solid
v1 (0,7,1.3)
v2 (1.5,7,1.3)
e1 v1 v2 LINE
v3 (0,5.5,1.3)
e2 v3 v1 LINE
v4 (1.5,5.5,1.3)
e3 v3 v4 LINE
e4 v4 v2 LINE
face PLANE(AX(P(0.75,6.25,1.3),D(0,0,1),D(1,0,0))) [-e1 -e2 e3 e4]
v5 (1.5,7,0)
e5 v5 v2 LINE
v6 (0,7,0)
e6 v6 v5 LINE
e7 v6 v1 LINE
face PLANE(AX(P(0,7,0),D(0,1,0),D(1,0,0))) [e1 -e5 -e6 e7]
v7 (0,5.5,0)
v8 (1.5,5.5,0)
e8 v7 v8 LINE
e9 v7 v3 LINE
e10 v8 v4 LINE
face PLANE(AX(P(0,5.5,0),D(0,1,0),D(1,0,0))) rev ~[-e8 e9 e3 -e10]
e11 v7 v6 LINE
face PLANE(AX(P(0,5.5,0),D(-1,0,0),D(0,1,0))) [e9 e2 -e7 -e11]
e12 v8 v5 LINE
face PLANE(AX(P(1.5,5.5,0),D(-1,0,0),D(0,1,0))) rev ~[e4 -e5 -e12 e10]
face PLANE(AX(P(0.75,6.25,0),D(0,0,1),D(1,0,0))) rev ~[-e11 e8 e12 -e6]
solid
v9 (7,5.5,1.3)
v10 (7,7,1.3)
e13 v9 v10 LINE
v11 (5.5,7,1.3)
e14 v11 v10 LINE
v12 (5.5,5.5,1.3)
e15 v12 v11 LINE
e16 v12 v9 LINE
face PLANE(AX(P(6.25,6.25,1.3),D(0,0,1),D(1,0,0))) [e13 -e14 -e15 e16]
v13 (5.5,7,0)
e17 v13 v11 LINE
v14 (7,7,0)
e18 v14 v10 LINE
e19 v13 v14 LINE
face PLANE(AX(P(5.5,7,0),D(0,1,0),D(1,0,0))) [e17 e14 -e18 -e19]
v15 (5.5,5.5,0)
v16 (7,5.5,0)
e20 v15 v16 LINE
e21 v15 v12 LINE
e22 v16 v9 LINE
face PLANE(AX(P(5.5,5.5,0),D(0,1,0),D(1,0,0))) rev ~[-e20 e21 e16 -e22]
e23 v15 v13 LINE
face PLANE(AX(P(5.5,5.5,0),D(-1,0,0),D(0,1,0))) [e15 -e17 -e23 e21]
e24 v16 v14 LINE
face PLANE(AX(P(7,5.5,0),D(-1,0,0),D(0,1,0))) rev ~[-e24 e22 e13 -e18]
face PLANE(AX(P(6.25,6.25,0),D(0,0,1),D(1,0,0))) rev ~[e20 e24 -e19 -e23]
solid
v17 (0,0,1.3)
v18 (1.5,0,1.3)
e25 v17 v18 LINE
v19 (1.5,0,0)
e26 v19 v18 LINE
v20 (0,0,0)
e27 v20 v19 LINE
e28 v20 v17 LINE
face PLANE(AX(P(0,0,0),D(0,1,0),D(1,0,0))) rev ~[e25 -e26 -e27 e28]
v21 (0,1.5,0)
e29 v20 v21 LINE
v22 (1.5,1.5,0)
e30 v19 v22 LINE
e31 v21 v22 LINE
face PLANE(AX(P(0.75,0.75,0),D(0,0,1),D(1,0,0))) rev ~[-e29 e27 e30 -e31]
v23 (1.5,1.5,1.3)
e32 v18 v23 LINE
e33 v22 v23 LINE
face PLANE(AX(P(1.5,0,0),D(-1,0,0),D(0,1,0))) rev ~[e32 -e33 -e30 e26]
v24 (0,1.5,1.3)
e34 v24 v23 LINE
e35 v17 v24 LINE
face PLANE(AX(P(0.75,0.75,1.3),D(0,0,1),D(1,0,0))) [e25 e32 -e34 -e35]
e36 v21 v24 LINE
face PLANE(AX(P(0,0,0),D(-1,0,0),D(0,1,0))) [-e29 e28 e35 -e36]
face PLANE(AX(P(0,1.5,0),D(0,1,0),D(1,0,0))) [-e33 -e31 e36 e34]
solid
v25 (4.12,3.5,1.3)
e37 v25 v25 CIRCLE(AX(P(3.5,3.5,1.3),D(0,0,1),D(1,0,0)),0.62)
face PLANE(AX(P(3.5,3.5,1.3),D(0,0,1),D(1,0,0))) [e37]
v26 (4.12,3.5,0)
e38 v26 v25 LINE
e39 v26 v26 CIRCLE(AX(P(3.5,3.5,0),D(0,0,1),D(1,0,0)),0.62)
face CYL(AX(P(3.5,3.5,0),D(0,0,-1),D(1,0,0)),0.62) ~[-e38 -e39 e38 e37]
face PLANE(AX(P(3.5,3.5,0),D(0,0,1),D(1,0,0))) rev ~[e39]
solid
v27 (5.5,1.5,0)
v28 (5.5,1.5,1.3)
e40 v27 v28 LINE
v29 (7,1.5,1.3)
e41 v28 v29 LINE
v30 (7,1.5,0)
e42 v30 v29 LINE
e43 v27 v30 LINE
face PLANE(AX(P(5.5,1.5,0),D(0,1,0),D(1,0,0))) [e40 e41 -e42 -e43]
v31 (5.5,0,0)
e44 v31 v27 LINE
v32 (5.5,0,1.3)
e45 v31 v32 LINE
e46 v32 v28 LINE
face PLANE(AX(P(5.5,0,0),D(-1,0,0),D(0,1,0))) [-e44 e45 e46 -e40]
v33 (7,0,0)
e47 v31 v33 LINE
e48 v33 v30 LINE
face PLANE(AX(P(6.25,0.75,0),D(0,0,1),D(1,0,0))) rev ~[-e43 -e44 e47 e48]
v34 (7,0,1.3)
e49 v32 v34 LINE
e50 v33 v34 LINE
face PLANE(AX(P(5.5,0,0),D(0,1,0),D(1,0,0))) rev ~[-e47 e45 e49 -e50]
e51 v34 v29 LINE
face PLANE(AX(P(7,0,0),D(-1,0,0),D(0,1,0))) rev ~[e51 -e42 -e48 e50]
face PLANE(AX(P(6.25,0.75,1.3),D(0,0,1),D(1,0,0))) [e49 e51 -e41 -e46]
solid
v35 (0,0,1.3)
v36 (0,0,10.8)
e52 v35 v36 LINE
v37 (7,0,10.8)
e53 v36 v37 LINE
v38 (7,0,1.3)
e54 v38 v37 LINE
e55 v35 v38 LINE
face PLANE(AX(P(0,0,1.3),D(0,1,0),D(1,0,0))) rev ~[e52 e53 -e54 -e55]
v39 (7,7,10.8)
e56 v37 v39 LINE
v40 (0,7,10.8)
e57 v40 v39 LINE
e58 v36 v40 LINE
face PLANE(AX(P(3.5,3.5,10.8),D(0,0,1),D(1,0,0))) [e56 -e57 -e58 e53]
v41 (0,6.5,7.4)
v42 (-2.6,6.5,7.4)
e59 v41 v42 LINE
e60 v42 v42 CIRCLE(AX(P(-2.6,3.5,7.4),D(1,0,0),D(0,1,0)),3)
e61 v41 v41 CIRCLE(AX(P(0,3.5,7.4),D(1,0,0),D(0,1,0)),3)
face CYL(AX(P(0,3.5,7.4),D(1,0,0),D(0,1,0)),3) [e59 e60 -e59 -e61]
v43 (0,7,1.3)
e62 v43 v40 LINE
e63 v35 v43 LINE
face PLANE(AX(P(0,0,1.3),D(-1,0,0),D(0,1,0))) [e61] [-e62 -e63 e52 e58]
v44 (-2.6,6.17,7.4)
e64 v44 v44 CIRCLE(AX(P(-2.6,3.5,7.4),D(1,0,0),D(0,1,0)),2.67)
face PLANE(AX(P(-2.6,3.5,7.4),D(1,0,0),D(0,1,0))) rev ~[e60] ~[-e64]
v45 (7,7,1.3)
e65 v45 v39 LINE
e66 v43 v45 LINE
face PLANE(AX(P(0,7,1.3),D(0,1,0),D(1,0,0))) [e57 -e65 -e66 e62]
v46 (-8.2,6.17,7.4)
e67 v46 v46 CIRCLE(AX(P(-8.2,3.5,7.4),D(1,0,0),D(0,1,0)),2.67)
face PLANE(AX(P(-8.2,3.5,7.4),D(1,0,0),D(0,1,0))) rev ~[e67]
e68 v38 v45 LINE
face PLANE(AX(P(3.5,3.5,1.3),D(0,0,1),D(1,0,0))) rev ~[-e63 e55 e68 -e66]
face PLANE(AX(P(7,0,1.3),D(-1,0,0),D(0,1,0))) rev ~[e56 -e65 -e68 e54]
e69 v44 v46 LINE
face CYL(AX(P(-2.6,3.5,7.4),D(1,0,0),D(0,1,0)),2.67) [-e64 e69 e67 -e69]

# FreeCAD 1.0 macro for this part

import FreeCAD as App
import Part
import Sketcher
Q = App.Units.Quantity

doc = App.newDocument("Part")
body = doc.addObject("PartDesign::Body", "Body")
body.AllowCompound = True

sketch1 = body.newObject("Sketcher::SketchObject", "Sketch")
sketch1.AttachmentSupport = (doc.getObject("XY_Plane"), [""])
sketch1.MapMode = "FlatFace"
sketch1.addGeometry([
    Part.LineSegment(App.Vector(0, 7, 0), App.Vector(0, 5.5, 0)),
    Part.LineSegment(App.Vector(0, 5.5, 0), App.Vector(1.5, 5.5, 0)),
    Part.LineSegment(App.Vector(1.5, 5.5, 0), App.Vector(1.5, 7, 0)),
    Part.LineSegment(App.Vector(1.5, 7, 0), App.Vector(0, 7, 0)),
    Part.LineSegment(App.Vector(5.5, 7, 0), App.Vector(5.5, 5.5, 0)),
    Part.LineSegment(App.Vector(5.5, 5.5, 0), App.Vector(7, 5.5, 0)),
    Part.LineSegment(App.Vector(7, 5.5, 0), App.Vector(7, 7, 0)),
    Part.LineSegment(App.Vector(7, 7, 0), App.Vector(5.5, 7, 0)),
    Part.LineSegment(App.Vector(5.5, 1.5, 0), App.Vector(5.5, 0, 0)),
    Part.LineSegment(App.Vector(5.5, 0, 0), App.Vector(7, 0, 0)),
    Part.LineSegment(App.Vector(7, 0, 0), App.Vector(7, 1.5, 0)),
    Part.LineSegment(App.Vector(7, 1.5, 0), App.Vector(5.5, 1.5, 0)),
    Part.LineSegment(App.Vector(0, 1.5, 0), App.Vector(0, 0, 0)),
    Part.LineSegment(App.Vector(0, 0, 0), App.Vector(1.5, 0, 0)),
    Part.LineSegment(App.Vector(1.5, 0, 0), App.Vector(1.5, 1.5, 0)),
    Part.LineSegment(App.Vector(1.5, 1.5, 0), App.Vector(0, 1.5, 0)),
    Part.Circle(App.Vector(3.5, 3.5, 0), App.Vector(0, 0, 1), 0.62),
], False)
sketch1.addConstraint([
    Sketcher.Constraint("Coincident", 0, 2, 1, 1),
    Sketcher.Constraint("Coincident", 1, 2, 2, 1),
    Sketcher.Constraint("Coincident", 2, 2, 3, 1),
    Sketcher.Constraint("Coincident", 3, 2, 0, 1),
    Sketcher.Constraint("Coincident", 4, 2, 5, 1),
    Sketcher.Constraint("Coincident", 5, 2, 6, 1),
    Sketcher.Constraint("Coincident", 6, 2, 7, 1),
    Sketcher.Constraint("Coincident", 7, 2, 4, 1),
    Sketcher.Constraint("Coincident", 8, 2, 9, 1),
    Sketcher.Constraint("Coincident", 9, 2, 10, 1),
    Sketcher.Constraint("Coincident", 10, 2, 11, 1),
    Sketcher.Constraint("Coincident", 11, 2, 8, 1),
    Sketcher.Constraint("Coincident", 12, 2, 13, 1),
    Sketcher.Constraint("Coincident", 13, 2, 14, 1),
    Sketcher.Constraint("Coincident", 14, 2, 15, 1),
    Sketcher.Constraint("Coincident", 15, 2, 12, 1),
    Sketcher.Constraint("Vertical", 0),
    Sketcher.Constraint("Horizontal", 1),
    Sketcher.Constraint("Vertical", 2),
    Sketcher.Constraint("Horizontal", 3),
    Sketcher.Constraint("Vertical", 4),
    Sketcher.Constraint("Horizontal", 5),
    Sketcher.Constraint("Vertical", 6),
    Sketcher.Constraint("Horizontal", 7),
    Sketcher.Constraint("Vertical", 8),
    Sketcher.Constraint("Horizontal", 9),
    Sketcher.Constraint("Vertical", 10),
    Sketcher.Constraint("Horizontal", 11),
    Sketcher.Constraint("Vertical", 12),
    Sketcher.Constraint("Horizontal", 13),
    Sketcher.Constraint("Vertical", 14),
    Sketcher.Constraint("Horizontal", 15),
    Sketcher.Constraint("Coincident", 12, 2, -1, 1),
    Sketcher.Constraint("PointOnObject", 0, 2, -2),
    Sketcher.Constraint("PointOnObject", 8, 2, -1),
    Sketcher.Constraint("Horizontal", 1, 2, 4, 2),
    Sketcher.Constraint("Horizontal", 3, 2, 6, 2),
    Sketcher.Constraint("Horizontal", 11, 2, 14, 2),
    Sketcher.Constraint("Vertical", 7, 2, 8, 2),
    Sketcher.Constraint("Vertical", 6, 2, 9, 2),
    Sketcher.Constraint("Vertical", 2, 2, 13, 2),
    Sketcher.Constraint("Equal", 3, 5),
    Sketcher.Constraint("Equal", 15, 0),
    Sketcher.Constraint("Equal", 6, 8),
    Sketcher.Constraint("Diameter", 16, Q("1.24 mm")),
    Sketcher.Constraint("DistanceX", 1, 1, 1, 2, Q("1.5 mm")),
    Sketcher.Constraint("DistanceY", -1, 1, 2, 2, Q("7 mm")),
    Sketcher.Constraint("DistanceX", -1, 1, 5, 2, Q("7 mm")),
    Sketcher.Constraint("DistanceY", 16, 3, 0, 2, Q("2 mm")),
    Sketcher.Constraint("DistanceX", 1, 2, 16, 3, Q("2 mm")),
])
pad1 = body.newObject("PartDesign::Pad", "Pad")
pad1.Profile = sketch1
pad1.Length = 1.3
body2 = doc.addObject("PartDesign::Body", "Body001")

sketch2 = body2.newObject("Sketcher::SketchObject", "Sketch001")
sketch2.AttachmentSupport = (doc.getObject("XY_Plane001"), [""])
sketch2.MapMode = "FlatFace"
sketch2.AttachmentOffset = App.Placement(App.Vector(0, 0, 1.3), App.Rotation())
sketch2.addGeometry([
    Part.LineSegment(App.Vector(0, 7, 0), App.Vector(0, 0, 0)),
    Part.LineSegment(App.Vector(0, 0, 0), App.Vector(7, 0, 0)),
    Part.LineSegment(App.Vector(7, 0, 0), App.Vector(7, 7, 0)),
    Part.LineSegment(App.Vector(7, 7, 0), App.Vector(0, 7, 0)),
], False)
sketch2.addConstraint([
    Sketcher.Constraint("Coincident", 0, 2, 1, 1),
    Sketcher.Constraint("Coincident", 1, 2, 2, 1),
    Sketcher.Constraint("Coincident", 2, 2, 3, 1),
    Sketcher.Constraint("Coincident", 3, 2, 0, 1),
    Sketcher.Constraint("Vertical", 0),
    Sketcher.Constraint("Horizontal", 1),
    Sketcher.Constraint("Vertical", 2),
    Sketcher.Constraint("Horizontal", 3),
    Sketcher.Constraint("Coincident", 0, 2, -1, 1),
    Sketcher.Constraint("Equal", 3, 0),
    Sketcher.Constraint("DistanceX", 1, 1, 1, 2, Q("7 mm")),
])
pad2 = body2.newObject("PartDesign::Pad", "Pad001")
pad2.Profile = sketch2
pad2.Length = 9.5

sketch3 = body2.newObject("Sketcher::SketchObject", "Sketch002")
sketch3.AttachmentSupport = (doc.getObject("YZ_Plane001"), [""])
sketch3.MapMode = "FlatFace"
sketch3.addGeometry(Part.Circle(App.Vector(3.5, 7.4, 0), App.Vector(0, 0, 1), 3), False)
sketch3.addConstraint([
    Sketcher.Constraint("Diameter", 0, Q("6 mm")),
    Sketcher.Constraint("DistanceX", -1, 1, 0, 3, Q("3.5 mm")),
    Sketcher.Constraint("DistanceY", -1, 1, 0, 3, Q("7.4 mm")),
])
pad3 = body2.newObject("PartDesign::Pad", "Pad002")
pad3.Profile = sketch3
pad3.Length = 2.6
pad3.Reversed = True

sketch4 = body2.newObject("Sketcher::SketchObject", "Sketch003")
sketch4.AttachmentSupport = (doc.getObject("YZ_Plane001"), [""])
sketch4.MapMode = "FlatFace"
sketch4.AttachmentOffset = App.Placement(App.Vector(0, 0, -2.6), App.Rotation())
sketch4.addGeometry(Part.Circle(App.Vector(3.5, 7.4, 0), App.Vector(0, 0, 1), 2.67), False)
sketch4.addConstraint([
    Sketcher.Constraint("Diameter", 0, Q("5.34 mm")),
    Sketcher.Constraint("DistanceX", -1, 1, 0, 3, Q("3.5 mm")),
    Sketcher.Constraint("DistanceY", -1, 1, 0, 3, Q("7.4 mm")),
])
pad4 = body2.newObject("PartDesign::Pad", "Pad003")
pad4.Profile = sketch4
pad4.Length = 5.6
pad4.Reversed = True

doc.recompute()
